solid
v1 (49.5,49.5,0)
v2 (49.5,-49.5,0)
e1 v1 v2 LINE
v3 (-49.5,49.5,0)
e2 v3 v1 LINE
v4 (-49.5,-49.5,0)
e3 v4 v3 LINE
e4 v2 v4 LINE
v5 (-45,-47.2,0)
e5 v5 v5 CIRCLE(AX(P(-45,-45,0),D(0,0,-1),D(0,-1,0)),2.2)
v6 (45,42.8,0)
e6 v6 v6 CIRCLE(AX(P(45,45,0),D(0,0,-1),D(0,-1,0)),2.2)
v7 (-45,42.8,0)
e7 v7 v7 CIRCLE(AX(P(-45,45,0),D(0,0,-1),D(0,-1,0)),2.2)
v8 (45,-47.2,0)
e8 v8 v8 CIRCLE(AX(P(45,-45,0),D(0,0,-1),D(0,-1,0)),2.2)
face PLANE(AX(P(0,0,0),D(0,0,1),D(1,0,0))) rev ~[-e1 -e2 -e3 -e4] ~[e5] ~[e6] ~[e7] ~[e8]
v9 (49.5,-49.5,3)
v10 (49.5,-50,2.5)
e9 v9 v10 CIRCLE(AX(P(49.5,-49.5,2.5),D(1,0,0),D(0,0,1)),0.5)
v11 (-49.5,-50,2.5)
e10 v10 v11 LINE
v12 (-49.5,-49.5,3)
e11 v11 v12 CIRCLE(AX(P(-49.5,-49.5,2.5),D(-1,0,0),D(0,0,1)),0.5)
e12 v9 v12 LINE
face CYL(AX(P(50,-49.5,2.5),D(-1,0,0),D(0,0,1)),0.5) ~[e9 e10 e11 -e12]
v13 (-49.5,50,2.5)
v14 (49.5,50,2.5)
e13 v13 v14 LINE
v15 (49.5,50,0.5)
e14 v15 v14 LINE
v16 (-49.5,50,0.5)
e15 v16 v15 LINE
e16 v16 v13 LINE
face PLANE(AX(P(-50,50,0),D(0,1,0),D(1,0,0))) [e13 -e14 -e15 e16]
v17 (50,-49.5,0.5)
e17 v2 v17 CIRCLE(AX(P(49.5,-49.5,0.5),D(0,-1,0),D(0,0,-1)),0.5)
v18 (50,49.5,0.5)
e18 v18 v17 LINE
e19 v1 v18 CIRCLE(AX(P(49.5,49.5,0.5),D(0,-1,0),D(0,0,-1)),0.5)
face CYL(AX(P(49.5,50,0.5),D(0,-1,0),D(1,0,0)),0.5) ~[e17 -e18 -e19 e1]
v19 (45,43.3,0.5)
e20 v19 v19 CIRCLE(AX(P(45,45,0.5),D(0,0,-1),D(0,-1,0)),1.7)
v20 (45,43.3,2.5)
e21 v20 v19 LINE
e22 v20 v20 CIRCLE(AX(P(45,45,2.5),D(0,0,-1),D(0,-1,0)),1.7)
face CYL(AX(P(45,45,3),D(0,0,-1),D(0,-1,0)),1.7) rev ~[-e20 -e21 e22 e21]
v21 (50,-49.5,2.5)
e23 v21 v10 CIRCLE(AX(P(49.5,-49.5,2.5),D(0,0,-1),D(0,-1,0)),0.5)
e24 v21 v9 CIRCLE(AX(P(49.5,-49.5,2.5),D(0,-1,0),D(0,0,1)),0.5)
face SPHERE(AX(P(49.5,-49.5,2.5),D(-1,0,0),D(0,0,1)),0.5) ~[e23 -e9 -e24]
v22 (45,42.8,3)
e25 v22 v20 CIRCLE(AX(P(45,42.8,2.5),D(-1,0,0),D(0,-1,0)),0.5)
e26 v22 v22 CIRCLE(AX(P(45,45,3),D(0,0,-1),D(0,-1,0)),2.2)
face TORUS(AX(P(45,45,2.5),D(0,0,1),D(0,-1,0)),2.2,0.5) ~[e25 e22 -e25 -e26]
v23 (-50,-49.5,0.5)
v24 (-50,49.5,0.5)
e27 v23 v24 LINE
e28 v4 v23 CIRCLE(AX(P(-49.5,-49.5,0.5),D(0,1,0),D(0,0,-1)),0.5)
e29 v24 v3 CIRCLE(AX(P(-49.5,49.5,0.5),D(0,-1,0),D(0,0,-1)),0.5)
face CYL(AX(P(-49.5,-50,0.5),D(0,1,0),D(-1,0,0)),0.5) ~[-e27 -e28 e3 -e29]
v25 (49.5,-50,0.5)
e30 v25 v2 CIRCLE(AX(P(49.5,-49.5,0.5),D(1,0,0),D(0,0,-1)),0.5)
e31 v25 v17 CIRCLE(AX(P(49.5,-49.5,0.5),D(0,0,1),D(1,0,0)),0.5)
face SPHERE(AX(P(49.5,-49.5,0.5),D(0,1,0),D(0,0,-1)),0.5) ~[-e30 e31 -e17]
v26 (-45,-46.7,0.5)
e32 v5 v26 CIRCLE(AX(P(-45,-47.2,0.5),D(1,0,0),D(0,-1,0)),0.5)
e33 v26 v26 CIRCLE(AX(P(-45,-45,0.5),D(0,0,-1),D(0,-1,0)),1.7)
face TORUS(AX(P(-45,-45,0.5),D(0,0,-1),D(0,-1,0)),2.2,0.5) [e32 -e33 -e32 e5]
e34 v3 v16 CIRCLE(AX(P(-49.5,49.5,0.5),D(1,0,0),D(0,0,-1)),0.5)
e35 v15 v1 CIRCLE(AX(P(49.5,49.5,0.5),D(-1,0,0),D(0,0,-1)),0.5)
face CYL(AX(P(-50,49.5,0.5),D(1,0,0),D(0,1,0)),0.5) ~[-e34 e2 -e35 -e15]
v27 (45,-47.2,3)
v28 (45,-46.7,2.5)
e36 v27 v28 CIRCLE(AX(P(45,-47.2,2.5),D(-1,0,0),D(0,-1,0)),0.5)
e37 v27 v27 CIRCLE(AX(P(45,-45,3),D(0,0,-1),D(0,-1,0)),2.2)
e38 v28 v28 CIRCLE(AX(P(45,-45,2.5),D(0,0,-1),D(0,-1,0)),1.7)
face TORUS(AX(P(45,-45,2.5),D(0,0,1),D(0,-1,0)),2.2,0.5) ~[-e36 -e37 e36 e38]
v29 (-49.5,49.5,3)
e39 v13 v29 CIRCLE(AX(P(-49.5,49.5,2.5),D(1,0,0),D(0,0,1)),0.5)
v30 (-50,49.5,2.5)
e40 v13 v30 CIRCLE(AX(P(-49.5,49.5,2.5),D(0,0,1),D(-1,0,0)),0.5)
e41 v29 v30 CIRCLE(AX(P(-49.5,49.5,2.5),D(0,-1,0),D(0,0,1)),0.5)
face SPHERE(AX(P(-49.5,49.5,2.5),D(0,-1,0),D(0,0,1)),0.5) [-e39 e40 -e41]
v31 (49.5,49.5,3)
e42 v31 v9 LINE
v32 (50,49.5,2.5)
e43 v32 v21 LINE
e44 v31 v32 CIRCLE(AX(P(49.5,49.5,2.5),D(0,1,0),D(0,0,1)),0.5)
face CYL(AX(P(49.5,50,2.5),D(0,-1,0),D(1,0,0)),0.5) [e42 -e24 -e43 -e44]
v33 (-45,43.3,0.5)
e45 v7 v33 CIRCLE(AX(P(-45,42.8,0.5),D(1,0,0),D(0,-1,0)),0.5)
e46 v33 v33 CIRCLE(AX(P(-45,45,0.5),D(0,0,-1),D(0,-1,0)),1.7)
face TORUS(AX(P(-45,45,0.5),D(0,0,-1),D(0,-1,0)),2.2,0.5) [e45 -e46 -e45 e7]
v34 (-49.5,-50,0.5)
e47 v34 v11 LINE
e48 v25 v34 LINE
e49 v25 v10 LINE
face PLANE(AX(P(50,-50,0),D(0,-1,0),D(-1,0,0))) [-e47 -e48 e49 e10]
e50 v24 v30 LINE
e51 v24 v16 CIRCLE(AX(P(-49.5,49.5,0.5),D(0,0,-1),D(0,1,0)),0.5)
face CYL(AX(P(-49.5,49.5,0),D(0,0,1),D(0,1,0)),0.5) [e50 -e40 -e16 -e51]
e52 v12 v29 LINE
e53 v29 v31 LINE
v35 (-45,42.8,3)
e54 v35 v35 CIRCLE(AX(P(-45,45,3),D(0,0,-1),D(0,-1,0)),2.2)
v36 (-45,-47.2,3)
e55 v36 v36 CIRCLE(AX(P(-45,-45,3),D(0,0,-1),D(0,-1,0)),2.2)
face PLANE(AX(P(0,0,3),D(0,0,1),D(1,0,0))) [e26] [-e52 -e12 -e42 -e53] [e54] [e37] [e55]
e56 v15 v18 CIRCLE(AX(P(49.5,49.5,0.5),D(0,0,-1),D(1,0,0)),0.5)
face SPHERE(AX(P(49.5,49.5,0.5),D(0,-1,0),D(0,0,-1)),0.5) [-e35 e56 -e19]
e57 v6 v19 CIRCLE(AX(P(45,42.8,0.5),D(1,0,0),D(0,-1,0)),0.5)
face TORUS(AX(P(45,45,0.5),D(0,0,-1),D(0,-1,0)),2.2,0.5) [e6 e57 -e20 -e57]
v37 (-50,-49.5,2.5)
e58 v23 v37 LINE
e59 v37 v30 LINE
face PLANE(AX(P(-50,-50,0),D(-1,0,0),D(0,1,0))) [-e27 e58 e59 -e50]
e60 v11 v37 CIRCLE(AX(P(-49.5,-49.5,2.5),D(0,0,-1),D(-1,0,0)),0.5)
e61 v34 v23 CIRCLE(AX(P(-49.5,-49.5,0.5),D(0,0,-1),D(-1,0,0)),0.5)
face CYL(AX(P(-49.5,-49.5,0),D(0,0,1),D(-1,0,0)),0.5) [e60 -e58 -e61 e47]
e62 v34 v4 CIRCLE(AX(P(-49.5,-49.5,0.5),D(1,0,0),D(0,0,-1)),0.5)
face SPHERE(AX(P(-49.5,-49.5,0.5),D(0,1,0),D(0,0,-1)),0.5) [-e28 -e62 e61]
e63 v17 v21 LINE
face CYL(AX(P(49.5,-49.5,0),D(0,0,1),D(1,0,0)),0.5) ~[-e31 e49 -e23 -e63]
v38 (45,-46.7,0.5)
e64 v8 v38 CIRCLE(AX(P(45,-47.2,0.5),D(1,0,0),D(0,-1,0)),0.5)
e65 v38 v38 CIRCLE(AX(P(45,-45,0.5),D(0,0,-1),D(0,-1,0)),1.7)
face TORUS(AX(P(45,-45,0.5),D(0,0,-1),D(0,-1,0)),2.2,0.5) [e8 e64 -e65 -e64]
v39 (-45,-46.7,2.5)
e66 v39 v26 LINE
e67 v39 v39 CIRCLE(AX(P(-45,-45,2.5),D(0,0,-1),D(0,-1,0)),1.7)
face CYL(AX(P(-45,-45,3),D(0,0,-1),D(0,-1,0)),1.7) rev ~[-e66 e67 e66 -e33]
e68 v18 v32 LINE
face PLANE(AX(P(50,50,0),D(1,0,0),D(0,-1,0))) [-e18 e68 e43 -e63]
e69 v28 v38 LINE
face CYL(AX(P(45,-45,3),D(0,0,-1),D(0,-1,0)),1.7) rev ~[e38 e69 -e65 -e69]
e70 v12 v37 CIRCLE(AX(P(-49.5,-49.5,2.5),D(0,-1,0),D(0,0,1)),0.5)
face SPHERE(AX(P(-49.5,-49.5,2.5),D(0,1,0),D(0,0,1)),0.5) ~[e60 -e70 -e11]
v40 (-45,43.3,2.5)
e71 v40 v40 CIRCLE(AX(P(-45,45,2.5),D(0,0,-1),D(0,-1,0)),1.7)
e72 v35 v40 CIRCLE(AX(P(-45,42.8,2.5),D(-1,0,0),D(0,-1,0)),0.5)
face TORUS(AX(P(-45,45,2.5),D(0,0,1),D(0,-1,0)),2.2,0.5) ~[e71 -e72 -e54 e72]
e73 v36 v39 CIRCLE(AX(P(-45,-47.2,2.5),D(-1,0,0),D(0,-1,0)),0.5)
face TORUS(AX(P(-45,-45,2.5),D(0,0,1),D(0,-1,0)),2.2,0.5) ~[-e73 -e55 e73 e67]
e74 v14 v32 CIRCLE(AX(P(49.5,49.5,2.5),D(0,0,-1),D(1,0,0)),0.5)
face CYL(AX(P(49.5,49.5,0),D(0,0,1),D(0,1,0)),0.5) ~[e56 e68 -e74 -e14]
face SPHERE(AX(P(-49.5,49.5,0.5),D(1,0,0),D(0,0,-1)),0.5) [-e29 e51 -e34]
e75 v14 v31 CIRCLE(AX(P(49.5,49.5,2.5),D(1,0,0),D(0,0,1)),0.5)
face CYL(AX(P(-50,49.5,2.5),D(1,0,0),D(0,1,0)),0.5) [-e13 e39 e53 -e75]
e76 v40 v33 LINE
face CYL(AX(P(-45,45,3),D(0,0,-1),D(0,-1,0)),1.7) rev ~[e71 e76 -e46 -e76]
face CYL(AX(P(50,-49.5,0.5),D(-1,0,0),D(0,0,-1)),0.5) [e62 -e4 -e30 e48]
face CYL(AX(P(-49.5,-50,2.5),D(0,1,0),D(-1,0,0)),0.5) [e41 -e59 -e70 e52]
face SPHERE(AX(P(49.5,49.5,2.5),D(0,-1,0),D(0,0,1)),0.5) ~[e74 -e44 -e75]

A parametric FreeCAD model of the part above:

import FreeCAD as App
import Part
import Sketcher

doc = App.newDocument("Part")
params = doc.addObject("Spreadsheet::Sheet", "Params")
for row, (alias, value) in enumerate([
    ("sketch1_width", "100 mm"),
    ("pad1_length", "3 mm"),
    ("sketch2_diameter", "3.4 mm"),
    ("hole_diameter", "3.4 mm"),
    ("sketch3_diameter", "3.4 mm"),
    ("hole2_diameter", "3.4 mm"),
    ("sketch4_diameter", "3.4 mm"),
    ("hole3_diameter", "3.4 mm"),
    ("sketch5_diameter", "3.4 mm"),
    ("hole4_diameter", "3.4 mm"),
    ("fillet_radius", "0.5 mm"),
], start=1):
    params.set(f"A{row}", alias)
    params.set(f"B{row}", "=" + value)
    params.setAlias(f"B{row}", alias)

body = doc.addObject("PartDesign::Body", "Body")

# Sketch on XY plane
sketch1 = body.newObject("Sketcher::SketchObject", "Sketch")
sketch1.AttachmentSupport = (doc.getObject("XY_Plane"), [""])
sketch1.MapMode = "FlatFace"
sketch1.addGeometry(Part.LineSegment(App.Vector(50, 50, 0), App.Vector(-50, 50, 0)), False)
sketch1.addGeometry(Part.LineSegment(App.Vector(-50, 50, 0), App.Vector(-50, -50, 0)), False)
sketch1.addGeometry(Part.LineSegment(App.Vector(-50, -50, 0), App.Vector(50, -50, 0)), False)
sketch1.addGeometry(Part.LineSegment(App.Vector(50, -50, 0), App.Vector(50, 50, 0)), False)
sketch1.addConstraint(Sketcher.Constraint("Coincident", 0, 2, 1, 1))
sketch1.addConstraint(Sketcher.Constraint("Coincident", 1, 2, 2, 1))
sketch1.addConstraint(Sketcher.Constraint("Coincident", 2, 2, 3, 1))
sketch1.addConstraint(Sketcher.Constraint("Coincident", 3, 2, 0, 1))
sketch1.addConstraint(Sketcher.Constraint("Horizontal", 0))
sketch1.addConstraint(Sketcher.Constraint("Vertical", 1))
sketch1.addConstraint(Sketcher.Constraint("Horizontal", 2))
sketch1.addConstraint(Sketcher.Constraint("Vertical", 3))
sketch1.addConstraint(Sketcher.Constraint("Symmetric", 0, 2, 2, 2, -1, 1))
sketch1.addConstraint(Sketcher.Constraint("Equal", 2, 1))
sketch1.addConstraint(Sketcher.Constraint("DistanceX", 0, 2, 0, 1, 100.0))
sketch1.setExpression("Constraints[10]", "Params.sketch1_width")
pad1 = body.newObject("PartDesign::Pad", "Pad")
pad1.Profile = sketch1
pad1.setExpression("Length", "Params.pad1_length")

# Sketch on XY plane
sketch2 = body.newObject("Sketcher::SketchObject", "Sketch001")
sketch2.AttachmentSupport = (doc.getObject("XY_Plane"), [""])
sketch2.MapMode = "FlatFace"
sketch2.AttachmentOffset = App.Placement(App.Vector(0, 0, 3), App.Rotation())
sketch2.addGeometry(Part.Circle(App.Vector(-45, 45, 0), App.Vector(0, 0, 1), 1.7), False)
sketch2.addConstraint(Sketcher.Constraint("Diameter", 0, 3.4))
sketch2.addConstraint(Sketcher.Constraint("DistanceX", 0, 3, -1, 1, 45.0))
sketch2.addConstraint(Sketcher.Constraint("DistanceY", -1, 1, 0, 3, 45.0))
sketch2.setExpression("Constraints[0]", "Params.sketch2_diameter")
doc.recompute()
hole = body.newObject("PartDesign::Hole", "Hole")
hole.Profile = sketch2
hole.ThreadType = "None"
hole.setExpression("Diameter", "Params.hole_diameter")
hole.DepthType = "ThroughAll"

# Sketch on XY plane
sketch3 = body.newObject("Sketcher::SketchObject", "Sketch002")
sketch3.AttachmentSupport = (doc.getObject("XY_Plane"), [""])
sketch3.MapMode = "FlatFace"
sketch3.AttachmentOffset = App.Placement(App.Vector(0, 0, 3), App.Rotation())
sketch3.addGeometry(Part.Circle(App.Vector(45, 45, 0), App.Vector(0, 0, 1), 1.7), False)
sketch3.addConstraint(Sketcher.Constraint("Diameter", 0, 3.4))
sketch3.addConstraint(Sketcher.Constraint("DistanceX", -1, 1, 0, 3, 45.0))
sketch3.addConstraint(Sketcher.Constraint("DistanceY", -1, 1, 0, 3, 45.0))
sketch3.setExpression("Constraints[0]", "Params.sketch3_diameter")
doc.recompute()
hole2 = body.newObject("PartDesign::Hole", "Hole001")
hole2.Profile = sketch3
hole2.ThreadType = "None"
hole2.setExpression("Diameter", "Params.hole2_diameter")
hole2.DepthType = "ThroughAll"

# Sketch on XY plane
sketch4 = body.newObject("Sketcher::SketchObject", "Sketch003")
sketch4.AttachmentSupport = (doc.getObject("XY_Plane"), [""])
sketch4.MapMode = "FlatFace"
sketch4.AttachmentOffset = App.Placement(App.Vector(0, 0, 3), App.Rotation())
sketch4.addGeometry(Part.Circle(App.Vector(-45, -45, 0), App.Vector(0, 0, 1), 1.7), False)
sketch4.addConstraint(Sketcher.Constraint("Diameter", 0, 3.4))
sketch4.addConstraint(Sketcher.Constraint("DistanceX", 0, 3, -1, 1, 45.0))
sketch4.addConstraint(Sketcher.Constraint("DistanceY", 0, 3, -1, 1, 45.0))
sketch4.setExpression("Constraints[0]", "Params.sketch4_diameter")
doc.recompute()
hole3 = body.newObject("PartDesign::Hole", "Hole002")
hole3.Profile = sketch4
hole3.ThreadType = "None"
hole3.setExpression("Diameter", "Params.hole3_diameter")
hole3.DepthType = "ThroughAll"

# Sketch on XY plane
sketch5 = body.newObject("Sketcher::SketchObject", "Sketch004")
sketch5.AttachmentSupport = (doc.getObject("XY_Plane"), [""])
sketch5.MapMode = "FlatFace"
sketch5.AttachmentOffset = App.Placement(App.Vector(0, 0, 3), App.Rotation())
sketch5.addGeometry(Part.Circle(App.Vector(45, -45, 0), App.Vector(0, 0, 1), 1.7), False)
sketch5.addConstraint(Sketcher.Constraint("Diameter", 0, 3.4))
sketch5.addConstraint(Sketcher.Constraint("DistanceX", -1, 1, 0, 3, 45.0))
sketch5.addConstraint(Sketcher.Constraint("DistanceY", 0, 3, -1, 1, 45.0))
sketch5.setExpression("Constraints[0]", "Params.sketch5_diameter")
doc.recompute()
hole4 = body.newObject("PartDesign::Hole", "Hole003")
hole4.Profile = sketch5
hole4.ThreadType = "None"
hole4.setExpression("Diameter", "Params.hole4_diameter")
hole4.DepthType = "ThroughAll"
doc.recompute()

fillet = body.newObject("PartDesign::Fillet", "Fillet")
fillet.Base = (hole4, ["Edge1"])
fillet.UseAllEdges = True
fillet.setExpression("Radius", "Params.fillet_radius")

doc.recompute()
